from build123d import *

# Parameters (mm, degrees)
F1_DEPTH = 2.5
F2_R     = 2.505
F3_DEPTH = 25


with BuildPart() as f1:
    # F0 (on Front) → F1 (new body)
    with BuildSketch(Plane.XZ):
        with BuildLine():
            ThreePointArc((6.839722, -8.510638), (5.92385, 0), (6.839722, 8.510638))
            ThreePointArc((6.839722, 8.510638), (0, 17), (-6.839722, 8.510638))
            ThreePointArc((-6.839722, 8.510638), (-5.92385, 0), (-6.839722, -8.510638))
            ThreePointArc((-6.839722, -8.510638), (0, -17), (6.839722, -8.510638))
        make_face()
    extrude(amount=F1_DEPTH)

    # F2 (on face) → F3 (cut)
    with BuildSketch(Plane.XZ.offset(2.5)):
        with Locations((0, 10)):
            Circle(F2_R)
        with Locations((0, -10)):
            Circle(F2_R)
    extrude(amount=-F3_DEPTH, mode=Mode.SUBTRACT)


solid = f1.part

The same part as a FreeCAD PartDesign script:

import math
import FreeCAD as App
import Part
import Sketcher
Q = App.Units.Quantity

doc = App.newDocument("Part")
body = doc.addObject("PartDesign::Body", "Body")

sketch1 = body.newObject("Sketcher::SketchObject", "Sketch")
sketch1.AttachmentSupport = (doc.getObject("XZ_Plane"), [""])
sketch1.MapMode = "FlatFace"
sketch1.addGeometry(Part.ArcOfCircle(Part.Circle(App.Vector(46, 0, 0), App.Vector(0, 0, 1), 40), math.radians(168), math.radians(192)), False)
sketch1.addGeometry(Part.ArcOfCircle(Part.Circle(App.Vector(0, 10, 0), App.Vector(0, 0, 1), 7), math.radians(-12), math.radians(192)), False)
sketch1.addGeometry(Part.ArcOfCircle(Part.Circle(App.Vector(-46, 0, 0), App.Vector(0, 0, 1), 40), math.radians(-12), math.radians(12)), False)
sketch1.addGeometry(Part.ArcOfCircle(Part.Circle(App.Vector(0, -10, 0), App.Vector(0, 0, 1), 7), math.radians(168), math.radians(372)), False)
sketch1.addConstraint(Sketcher.Constraint("Tangent", 0, 1, 1, 1))
sketch1.addConstraint(Sketcher.Constraint("Tangent", 1, 2, 2, 2))
sketch1.addConstraint(Sketcher.Constraint("Tangent", 2, 1, 3, 1))
sketch1.addConstraint(Sketcher.Constraint("Tangent", 3, 2, 0, 2))
sketch1.addConstraint(Sketcher.Constraint("Equal", 0, 2))
sketch1.addConstraint(Sketcher.Constraint("Equal", 1, 3))
sketch1.addConstraint(Sketcher.Constraint("Symmetric", 0, 3, 2, 3, -1, 1))
sketch1.addConstraint(Sketcher.Constraint("PointOnObject", 0, 3, -1))
sketch1.addConstraint(Sketcher.Constraint("Radius", 1, Q("7 mm")))
sketch1.addConstraint(Sketcher.Constraint("DistanceY", -1, 1, 1, 3, Q("10 mm")))
sketch1.addConstraint(Sketcher.Constraint("Radius", 0, Q("40.000011 mm")))
pad1 = body.newObject("PartDesign::Pad", "Pad")
pad1.Profile = sketch1
pad1.Length = 2.5

sketch2 = body.newObject("Sketcher::SketchObject", "Sketch001")
sketch2.AttachmentSupport = (doc.getObject("XZ_Plane"), [""])
sketch2.MapMode = "FlatFace"
sketch2.AttachmentOffset = App.Placement(App.Vector(0, 0, 2.5), App.Rotation())
sketch2.addGeometry(Part.Circle(App.Vector(0, 10, 0), App.Vector(0, 0, 1), 2.5), False)
sketch2.addGeometry(Part.Circle(App.Vector(0, -10, 0), App.Vector(0, 0, 1), 2.5), False)
sketch2.addConstraint(Sketcher.Constraint("Equal", 0, 1))
sketch2.addConstraint(Sketcher.Constraint("Symmetric", 0, 3, 1, 3, -1, 1))
sketch2.addConstraint(Sketcher.Constraint("PointOnObject", 0, 3, -2))
sketch2.addConstraint(Sketcher.Constraint("Diameter", 0, Q("5.01 mm")))
sketch2.addConstraint(Sketcher.Constraint("DistanceY", -1, 1, 0, 3, Q("10 mm")))
pocket1 = body.newObject("PartDesign::Pocket", "Pocket")
pocket1.Profile = sketch2
pocket1.Length = 25

doc.recompute()
